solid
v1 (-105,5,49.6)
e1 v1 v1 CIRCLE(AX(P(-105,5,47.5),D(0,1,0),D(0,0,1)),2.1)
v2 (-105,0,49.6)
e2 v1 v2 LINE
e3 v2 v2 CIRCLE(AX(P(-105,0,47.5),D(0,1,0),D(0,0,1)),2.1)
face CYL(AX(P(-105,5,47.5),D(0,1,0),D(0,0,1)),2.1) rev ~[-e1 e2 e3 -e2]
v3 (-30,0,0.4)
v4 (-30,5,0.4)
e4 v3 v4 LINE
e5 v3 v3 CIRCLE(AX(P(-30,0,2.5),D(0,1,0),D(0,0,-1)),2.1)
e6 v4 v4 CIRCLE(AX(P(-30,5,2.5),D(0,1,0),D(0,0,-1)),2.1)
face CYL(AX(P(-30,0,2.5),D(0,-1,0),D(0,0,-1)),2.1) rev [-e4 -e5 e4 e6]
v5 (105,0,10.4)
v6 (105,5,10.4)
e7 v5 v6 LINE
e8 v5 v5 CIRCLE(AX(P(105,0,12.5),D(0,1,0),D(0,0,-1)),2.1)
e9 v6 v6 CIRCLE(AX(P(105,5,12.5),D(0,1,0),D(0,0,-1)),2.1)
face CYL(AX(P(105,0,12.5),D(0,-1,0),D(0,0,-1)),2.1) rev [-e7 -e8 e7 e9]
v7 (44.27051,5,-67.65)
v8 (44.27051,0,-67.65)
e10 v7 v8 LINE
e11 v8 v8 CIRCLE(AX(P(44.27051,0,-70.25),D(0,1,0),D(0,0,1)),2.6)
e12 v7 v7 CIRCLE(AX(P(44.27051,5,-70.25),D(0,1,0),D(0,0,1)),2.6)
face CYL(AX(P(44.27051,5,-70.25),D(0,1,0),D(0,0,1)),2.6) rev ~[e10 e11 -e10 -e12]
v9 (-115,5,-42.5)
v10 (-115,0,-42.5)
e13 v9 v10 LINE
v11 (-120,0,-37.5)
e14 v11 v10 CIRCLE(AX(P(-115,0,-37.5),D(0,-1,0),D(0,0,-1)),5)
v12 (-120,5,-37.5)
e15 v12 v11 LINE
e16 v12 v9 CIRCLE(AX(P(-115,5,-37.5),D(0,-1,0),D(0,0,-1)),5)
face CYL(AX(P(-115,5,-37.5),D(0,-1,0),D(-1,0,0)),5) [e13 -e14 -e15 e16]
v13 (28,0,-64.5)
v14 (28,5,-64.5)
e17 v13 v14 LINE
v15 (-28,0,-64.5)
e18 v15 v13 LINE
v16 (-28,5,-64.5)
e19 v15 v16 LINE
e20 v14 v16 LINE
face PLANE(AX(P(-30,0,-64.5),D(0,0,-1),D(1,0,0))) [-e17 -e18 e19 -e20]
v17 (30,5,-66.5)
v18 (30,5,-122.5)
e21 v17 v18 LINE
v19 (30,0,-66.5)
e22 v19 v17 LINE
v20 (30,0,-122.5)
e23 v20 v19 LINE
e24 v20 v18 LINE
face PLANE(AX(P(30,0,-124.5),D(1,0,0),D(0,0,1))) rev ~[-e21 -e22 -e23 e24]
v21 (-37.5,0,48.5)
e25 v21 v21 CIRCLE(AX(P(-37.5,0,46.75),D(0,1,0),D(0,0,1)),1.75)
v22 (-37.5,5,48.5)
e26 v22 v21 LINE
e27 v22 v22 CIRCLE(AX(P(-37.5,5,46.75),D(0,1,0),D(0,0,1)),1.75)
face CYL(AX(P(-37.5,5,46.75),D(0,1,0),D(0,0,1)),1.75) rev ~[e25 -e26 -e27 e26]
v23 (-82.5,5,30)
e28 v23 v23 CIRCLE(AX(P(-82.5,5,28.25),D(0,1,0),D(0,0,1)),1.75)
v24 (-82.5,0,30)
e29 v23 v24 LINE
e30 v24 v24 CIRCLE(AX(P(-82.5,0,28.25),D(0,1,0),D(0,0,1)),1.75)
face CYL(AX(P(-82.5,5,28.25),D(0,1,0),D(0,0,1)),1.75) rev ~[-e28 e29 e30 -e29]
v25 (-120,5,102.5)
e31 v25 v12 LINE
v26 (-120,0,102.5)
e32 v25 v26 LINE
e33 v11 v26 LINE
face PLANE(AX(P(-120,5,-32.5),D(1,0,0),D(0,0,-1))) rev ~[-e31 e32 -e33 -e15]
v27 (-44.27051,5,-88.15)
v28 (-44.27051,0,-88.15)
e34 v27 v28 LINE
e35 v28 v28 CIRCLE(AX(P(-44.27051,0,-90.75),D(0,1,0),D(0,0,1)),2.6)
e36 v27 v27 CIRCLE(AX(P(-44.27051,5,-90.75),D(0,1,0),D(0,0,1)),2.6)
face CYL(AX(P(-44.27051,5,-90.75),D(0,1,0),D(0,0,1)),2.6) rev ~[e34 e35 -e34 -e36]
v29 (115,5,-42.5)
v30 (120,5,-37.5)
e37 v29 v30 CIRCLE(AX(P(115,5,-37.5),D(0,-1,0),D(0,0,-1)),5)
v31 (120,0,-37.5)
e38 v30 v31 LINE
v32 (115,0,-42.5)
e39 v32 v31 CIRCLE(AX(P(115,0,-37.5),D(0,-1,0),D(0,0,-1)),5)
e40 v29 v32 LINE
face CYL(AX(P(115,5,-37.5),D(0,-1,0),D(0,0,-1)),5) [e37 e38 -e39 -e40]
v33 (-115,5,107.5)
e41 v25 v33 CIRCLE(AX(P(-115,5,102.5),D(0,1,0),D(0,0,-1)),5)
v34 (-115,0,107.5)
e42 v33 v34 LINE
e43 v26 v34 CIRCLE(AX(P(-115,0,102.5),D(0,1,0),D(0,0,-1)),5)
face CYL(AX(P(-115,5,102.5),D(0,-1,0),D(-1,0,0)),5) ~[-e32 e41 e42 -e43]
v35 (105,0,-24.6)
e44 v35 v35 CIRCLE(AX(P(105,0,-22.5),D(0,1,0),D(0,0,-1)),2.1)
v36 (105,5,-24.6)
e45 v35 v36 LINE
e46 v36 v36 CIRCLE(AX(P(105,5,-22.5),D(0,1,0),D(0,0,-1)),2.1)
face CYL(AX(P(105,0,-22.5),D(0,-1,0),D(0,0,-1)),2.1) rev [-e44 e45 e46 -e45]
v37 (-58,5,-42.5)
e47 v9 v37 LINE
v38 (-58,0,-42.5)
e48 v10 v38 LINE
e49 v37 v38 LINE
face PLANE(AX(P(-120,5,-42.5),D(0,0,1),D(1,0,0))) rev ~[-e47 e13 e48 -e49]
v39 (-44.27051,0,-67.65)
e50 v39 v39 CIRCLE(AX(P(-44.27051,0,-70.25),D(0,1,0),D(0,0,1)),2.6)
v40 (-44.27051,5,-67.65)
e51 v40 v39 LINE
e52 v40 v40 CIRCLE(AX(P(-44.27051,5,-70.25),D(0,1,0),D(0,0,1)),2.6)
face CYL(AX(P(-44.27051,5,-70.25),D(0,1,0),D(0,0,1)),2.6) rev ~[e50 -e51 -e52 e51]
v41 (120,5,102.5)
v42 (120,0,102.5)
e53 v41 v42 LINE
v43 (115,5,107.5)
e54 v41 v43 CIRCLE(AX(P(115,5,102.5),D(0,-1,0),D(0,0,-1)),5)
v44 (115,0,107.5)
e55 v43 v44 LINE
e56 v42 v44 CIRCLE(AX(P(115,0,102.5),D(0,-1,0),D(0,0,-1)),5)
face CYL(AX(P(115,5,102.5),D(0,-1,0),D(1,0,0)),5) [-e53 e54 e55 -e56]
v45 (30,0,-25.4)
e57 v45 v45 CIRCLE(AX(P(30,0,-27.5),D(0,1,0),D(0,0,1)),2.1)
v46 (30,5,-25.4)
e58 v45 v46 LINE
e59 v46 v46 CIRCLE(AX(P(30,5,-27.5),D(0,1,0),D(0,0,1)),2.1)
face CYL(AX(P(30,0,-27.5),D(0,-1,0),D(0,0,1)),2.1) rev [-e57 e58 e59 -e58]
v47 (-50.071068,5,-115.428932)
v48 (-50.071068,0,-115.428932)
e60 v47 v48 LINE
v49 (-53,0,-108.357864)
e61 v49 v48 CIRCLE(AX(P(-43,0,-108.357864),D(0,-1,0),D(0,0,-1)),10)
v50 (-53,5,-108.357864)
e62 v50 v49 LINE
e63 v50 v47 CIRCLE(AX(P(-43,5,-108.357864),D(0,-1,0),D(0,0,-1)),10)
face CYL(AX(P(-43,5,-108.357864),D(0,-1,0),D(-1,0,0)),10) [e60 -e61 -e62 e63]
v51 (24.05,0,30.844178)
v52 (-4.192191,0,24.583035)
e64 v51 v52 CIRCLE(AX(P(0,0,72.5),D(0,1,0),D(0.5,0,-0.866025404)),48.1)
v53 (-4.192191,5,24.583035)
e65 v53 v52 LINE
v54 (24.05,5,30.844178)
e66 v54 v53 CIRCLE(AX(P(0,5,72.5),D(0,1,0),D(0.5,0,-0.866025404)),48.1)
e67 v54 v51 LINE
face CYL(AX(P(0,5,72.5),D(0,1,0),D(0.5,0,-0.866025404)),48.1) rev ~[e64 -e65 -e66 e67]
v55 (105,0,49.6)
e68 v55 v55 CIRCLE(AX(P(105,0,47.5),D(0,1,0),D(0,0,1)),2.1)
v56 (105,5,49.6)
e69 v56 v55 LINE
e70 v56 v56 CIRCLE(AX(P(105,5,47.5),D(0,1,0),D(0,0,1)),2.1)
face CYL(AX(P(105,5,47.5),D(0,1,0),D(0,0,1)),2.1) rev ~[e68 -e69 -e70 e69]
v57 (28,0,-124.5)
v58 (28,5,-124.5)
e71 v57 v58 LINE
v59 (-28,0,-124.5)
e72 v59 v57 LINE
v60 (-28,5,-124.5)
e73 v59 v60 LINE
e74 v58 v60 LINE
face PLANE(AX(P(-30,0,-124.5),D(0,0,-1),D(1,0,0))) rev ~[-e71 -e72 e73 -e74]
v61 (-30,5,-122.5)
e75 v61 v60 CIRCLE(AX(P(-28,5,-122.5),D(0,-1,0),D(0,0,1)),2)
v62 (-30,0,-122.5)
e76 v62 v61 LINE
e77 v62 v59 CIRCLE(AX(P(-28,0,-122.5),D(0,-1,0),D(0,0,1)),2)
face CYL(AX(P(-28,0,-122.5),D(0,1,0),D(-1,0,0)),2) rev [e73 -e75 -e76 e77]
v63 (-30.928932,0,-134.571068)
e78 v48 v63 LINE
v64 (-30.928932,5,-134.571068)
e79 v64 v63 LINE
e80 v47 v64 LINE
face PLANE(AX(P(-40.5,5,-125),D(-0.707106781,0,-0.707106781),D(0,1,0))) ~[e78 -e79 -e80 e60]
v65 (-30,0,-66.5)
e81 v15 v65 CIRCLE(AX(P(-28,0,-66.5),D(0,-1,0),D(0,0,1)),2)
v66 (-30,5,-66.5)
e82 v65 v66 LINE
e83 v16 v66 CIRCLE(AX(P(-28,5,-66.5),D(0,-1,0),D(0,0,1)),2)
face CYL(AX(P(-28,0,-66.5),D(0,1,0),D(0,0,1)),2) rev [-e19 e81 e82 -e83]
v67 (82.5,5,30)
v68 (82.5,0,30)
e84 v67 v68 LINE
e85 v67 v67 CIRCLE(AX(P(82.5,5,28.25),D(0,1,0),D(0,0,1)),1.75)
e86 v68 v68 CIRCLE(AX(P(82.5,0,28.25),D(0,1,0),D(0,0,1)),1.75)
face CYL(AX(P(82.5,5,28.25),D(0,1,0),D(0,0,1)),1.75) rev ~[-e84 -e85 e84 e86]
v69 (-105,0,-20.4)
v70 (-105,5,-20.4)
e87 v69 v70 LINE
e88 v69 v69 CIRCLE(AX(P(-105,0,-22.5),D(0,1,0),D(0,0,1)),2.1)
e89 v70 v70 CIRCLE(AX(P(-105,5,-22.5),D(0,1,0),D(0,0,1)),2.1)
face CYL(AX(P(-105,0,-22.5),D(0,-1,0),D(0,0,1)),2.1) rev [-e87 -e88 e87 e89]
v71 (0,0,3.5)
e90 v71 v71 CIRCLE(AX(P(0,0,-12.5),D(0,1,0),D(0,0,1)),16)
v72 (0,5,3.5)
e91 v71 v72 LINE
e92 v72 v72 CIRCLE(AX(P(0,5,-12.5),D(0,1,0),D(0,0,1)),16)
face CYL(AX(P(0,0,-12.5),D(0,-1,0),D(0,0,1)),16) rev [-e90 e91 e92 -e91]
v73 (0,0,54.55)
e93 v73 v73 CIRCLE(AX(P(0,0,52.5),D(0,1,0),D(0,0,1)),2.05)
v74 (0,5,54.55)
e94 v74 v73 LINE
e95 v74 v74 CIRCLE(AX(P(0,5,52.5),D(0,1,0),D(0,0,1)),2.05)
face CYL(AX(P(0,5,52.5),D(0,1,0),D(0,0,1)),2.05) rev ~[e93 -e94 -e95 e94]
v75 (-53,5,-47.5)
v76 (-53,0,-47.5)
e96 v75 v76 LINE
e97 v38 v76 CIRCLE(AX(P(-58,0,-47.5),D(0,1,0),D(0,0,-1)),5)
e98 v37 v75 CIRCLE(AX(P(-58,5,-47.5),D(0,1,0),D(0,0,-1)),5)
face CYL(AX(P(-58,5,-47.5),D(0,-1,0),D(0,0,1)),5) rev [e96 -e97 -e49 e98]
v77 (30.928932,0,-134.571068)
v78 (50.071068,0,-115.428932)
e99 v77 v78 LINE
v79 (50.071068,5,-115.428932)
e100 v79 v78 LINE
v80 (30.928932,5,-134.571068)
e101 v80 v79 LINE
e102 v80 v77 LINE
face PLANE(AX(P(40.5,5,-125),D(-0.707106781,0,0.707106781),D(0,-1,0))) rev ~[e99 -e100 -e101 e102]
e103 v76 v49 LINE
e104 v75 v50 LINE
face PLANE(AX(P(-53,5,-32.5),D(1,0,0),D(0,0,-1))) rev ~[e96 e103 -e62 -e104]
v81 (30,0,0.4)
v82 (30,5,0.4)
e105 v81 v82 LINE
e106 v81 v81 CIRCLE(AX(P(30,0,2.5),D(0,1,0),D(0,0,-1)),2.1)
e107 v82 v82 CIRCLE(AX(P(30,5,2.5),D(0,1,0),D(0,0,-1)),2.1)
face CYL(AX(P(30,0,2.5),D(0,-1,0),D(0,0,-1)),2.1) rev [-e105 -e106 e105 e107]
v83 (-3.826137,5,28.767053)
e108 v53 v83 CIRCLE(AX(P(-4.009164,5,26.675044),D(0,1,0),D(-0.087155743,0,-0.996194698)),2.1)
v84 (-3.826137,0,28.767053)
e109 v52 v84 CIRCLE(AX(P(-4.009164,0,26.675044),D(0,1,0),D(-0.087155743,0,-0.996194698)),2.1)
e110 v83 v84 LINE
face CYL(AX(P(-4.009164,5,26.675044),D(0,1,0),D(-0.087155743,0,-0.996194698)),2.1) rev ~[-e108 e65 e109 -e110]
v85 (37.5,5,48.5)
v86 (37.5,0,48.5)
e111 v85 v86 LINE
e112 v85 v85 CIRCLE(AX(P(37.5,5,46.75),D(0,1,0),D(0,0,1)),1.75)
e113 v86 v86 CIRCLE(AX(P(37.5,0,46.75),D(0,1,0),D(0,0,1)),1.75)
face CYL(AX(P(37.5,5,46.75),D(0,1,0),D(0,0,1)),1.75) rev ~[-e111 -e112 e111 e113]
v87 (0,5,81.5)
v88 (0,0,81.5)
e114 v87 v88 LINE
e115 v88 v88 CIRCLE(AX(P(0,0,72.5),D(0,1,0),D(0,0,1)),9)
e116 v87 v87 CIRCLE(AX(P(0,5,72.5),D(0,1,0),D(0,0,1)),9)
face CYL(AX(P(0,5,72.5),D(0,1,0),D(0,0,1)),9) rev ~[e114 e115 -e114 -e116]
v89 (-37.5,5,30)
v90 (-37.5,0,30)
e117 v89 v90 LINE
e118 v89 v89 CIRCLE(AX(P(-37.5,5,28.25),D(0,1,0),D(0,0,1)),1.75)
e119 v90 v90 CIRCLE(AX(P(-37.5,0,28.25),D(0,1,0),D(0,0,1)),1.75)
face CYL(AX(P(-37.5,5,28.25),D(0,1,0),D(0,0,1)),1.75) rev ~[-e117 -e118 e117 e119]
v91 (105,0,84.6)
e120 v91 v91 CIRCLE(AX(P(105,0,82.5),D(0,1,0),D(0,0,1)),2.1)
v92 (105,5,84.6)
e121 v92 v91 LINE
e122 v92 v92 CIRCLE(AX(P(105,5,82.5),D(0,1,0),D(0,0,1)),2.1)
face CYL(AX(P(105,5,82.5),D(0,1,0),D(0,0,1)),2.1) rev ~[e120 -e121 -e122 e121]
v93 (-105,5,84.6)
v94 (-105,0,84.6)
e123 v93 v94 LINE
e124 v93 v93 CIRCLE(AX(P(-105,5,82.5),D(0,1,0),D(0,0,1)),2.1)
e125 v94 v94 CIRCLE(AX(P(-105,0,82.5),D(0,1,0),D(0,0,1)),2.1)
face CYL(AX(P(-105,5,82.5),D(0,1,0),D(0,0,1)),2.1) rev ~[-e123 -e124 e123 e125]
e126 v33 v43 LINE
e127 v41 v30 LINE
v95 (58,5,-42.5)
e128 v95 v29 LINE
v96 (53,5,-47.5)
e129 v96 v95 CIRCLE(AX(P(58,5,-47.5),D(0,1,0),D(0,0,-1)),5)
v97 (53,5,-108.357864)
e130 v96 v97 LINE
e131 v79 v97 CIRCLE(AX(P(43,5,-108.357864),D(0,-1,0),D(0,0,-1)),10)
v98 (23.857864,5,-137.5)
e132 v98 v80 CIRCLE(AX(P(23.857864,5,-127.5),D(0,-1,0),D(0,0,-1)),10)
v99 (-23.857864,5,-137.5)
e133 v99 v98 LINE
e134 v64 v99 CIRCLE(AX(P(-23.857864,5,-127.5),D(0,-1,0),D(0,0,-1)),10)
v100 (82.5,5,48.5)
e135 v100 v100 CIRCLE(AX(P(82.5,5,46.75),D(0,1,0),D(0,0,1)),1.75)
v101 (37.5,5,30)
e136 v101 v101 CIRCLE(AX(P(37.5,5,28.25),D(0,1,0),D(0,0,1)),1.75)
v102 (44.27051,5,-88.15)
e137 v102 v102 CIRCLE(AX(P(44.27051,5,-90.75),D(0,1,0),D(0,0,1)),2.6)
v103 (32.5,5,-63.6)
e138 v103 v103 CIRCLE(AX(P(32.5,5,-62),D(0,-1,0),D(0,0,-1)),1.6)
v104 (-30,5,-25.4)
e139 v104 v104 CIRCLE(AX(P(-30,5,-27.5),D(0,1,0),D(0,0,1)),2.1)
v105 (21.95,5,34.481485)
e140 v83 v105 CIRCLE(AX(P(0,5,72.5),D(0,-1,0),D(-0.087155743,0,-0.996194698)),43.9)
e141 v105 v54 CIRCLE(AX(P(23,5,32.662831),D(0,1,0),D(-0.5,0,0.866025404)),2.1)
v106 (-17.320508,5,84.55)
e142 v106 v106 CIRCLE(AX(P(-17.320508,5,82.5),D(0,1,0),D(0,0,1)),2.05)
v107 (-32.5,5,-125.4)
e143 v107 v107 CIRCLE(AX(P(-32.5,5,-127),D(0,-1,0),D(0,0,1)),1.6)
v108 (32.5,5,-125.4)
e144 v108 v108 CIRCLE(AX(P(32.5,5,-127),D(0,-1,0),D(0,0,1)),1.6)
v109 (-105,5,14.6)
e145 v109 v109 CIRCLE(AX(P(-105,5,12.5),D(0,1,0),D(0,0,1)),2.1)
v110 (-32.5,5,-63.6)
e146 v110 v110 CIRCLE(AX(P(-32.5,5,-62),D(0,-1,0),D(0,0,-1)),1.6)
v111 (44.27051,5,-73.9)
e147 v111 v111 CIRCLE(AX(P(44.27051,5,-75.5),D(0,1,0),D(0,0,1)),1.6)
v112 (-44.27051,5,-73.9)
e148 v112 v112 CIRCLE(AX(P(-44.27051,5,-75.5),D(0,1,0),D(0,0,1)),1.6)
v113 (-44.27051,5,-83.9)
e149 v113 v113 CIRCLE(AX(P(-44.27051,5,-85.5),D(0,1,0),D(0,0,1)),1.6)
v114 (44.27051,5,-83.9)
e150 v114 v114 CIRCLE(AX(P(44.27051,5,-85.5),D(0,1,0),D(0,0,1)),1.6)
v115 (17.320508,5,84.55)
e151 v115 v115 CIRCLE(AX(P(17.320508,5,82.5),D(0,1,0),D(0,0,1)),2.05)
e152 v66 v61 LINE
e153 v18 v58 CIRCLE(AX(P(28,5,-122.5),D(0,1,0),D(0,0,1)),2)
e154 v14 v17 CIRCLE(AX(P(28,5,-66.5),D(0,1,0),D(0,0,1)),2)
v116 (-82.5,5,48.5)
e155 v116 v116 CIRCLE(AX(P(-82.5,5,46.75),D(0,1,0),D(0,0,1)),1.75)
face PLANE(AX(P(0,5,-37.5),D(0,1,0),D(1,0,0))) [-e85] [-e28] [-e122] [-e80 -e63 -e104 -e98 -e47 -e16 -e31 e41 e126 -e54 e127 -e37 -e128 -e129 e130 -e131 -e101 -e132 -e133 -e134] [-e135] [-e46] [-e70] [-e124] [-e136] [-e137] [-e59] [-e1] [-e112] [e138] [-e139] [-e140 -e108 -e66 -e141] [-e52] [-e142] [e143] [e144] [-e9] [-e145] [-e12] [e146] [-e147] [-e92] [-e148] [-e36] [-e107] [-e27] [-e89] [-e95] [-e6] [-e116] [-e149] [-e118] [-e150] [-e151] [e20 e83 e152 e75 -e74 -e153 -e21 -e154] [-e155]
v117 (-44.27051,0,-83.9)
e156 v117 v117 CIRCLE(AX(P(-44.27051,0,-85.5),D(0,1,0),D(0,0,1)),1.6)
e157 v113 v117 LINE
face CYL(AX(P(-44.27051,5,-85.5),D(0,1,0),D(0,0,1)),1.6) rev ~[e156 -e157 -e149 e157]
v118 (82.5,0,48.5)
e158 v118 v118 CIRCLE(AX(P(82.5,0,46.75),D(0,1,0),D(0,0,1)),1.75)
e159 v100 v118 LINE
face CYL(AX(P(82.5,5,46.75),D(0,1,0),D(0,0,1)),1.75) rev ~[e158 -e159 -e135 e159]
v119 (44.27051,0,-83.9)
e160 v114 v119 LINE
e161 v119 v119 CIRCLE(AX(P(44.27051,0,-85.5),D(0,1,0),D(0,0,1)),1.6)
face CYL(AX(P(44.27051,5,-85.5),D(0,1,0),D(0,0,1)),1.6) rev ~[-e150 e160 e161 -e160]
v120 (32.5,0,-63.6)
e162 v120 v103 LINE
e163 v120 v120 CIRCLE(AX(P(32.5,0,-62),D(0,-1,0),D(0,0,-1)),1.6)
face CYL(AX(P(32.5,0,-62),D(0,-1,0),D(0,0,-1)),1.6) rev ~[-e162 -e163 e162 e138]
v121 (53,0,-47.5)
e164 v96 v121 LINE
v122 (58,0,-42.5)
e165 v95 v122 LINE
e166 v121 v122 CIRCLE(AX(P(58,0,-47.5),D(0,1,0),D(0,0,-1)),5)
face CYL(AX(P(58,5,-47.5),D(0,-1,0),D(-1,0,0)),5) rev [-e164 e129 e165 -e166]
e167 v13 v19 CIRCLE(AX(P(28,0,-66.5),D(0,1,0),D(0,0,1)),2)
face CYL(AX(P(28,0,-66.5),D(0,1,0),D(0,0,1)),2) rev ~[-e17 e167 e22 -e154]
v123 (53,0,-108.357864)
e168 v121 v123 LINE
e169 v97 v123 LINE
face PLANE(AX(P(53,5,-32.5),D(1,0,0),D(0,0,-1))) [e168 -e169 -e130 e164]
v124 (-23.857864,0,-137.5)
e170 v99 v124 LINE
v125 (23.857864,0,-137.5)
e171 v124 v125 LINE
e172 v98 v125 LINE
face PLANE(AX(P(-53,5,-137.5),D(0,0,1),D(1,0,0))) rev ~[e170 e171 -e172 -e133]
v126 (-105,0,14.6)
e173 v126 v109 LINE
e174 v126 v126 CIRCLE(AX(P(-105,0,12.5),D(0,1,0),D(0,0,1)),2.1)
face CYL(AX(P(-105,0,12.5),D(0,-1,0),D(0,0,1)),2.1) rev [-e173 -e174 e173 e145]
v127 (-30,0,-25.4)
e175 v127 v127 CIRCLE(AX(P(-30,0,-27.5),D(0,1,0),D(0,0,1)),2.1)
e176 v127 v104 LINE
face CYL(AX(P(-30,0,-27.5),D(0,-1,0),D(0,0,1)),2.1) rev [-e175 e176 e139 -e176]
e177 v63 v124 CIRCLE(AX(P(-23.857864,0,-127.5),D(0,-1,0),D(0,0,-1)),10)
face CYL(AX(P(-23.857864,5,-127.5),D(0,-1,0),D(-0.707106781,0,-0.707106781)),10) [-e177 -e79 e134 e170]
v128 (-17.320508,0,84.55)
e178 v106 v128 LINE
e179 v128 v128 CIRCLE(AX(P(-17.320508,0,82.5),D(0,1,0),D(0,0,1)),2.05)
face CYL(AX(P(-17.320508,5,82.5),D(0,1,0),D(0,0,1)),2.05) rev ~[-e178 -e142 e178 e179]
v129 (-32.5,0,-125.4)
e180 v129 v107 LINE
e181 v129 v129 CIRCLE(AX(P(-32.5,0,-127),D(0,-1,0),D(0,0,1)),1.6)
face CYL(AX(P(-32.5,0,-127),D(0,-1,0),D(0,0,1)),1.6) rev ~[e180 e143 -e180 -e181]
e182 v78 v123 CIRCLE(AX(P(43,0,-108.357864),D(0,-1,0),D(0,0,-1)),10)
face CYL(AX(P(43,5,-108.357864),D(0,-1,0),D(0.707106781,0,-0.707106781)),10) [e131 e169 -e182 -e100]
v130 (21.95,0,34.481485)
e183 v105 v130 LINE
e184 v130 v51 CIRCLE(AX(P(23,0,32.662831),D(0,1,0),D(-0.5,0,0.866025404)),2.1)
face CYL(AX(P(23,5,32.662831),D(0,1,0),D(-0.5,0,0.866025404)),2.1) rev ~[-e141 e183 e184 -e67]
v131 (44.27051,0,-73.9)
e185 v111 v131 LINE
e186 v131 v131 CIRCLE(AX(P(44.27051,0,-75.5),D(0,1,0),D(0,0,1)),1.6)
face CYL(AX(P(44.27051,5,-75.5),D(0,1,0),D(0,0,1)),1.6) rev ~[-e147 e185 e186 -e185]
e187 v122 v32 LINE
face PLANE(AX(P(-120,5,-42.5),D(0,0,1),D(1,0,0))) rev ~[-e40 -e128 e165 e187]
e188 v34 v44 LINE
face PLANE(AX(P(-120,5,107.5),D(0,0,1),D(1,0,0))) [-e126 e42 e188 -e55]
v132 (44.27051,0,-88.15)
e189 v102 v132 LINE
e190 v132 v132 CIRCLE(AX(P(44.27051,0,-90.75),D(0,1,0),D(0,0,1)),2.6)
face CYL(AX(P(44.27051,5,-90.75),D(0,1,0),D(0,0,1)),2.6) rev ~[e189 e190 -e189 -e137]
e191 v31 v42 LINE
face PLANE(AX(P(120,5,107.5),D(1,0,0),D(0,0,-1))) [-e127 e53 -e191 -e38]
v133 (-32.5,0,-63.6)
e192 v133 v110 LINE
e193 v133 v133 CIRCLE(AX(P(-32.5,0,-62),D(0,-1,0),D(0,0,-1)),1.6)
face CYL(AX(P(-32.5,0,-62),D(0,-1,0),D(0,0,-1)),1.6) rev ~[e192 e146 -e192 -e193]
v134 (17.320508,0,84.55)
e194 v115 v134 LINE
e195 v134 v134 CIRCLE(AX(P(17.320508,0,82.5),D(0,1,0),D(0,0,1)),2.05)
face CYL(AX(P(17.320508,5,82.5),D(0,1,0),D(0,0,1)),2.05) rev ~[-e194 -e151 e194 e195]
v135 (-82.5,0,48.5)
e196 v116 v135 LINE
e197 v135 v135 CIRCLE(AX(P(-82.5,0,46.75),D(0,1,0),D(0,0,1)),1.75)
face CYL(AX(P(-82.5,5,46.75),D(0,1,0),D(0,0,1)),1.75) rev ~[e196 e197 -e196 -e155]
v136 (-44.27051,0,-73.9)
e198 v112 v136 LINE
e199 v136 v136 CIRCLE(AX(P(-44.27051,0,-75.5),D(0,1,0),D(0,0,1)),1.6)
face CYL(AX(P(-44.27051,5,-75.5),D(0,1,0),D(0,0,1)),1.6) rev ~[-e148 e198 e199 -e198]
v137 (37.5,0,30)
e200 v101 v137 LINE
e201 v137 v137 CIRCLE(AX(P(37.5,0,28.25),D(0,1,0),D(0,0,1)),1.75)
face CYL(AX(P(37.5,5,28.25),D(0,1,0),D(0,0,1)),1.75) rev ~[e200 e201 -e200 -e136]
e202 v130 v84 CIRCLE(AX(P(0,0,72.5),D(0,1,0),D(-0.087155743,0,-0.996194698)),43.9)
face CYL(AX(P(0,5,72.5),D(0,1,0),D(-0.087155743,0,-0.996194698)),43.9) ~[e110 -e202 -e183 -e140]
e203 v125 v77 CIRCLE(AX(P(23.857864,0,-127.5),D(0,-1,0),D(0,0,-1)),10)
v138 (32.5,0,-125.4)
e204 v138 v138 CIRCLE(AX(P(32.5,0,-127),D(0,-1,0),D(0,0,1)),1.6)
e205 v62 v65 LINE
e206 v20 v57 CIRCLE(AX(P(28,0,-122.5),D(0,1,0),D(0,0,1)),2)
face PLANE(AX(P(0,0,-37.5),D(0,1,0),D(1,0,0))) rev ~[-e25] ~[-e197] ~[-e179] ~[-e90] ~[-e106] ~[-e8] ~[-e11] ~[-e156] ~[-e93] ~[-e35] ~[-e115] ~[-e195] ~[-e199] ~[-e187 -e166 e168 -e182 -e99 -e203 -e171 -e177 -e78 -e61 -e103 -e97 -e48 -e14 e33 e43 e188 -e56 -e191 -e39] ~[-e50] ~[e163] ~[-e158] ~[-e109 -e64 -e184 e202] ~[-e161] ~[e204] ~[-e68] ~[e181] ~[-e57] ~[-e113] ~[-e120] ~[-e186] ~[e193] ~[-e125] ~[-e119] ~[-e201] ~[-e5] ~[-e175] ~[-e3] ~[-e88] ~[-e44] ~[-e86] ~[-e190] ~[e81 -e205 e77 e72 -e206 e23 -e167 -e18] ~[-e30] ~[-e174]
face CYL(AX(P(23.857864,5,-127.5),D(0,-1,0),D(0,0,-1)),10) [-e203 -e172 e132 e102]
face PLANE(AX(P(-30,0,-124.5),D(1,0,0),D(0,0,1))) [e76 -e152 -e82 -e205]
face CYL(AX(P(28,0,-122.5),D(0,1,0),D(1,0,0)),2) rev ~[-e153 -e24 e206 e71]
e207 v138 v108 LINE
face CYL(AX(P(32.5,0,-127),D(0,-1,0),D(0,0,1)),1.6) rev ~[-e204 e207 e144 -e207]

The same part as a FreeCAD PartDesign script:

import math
import FreeCAD as App
import Part
import Sketcher
from FreeCAD import Vector


def edges_at(feature, points):
    """Names of the edges that pass closest to the given points."""
    edges = feature.Shape.Edges
    near = lambda p: min(range(len(edges)), key=lambda i: edges[i].distToShape(Part.Vertex(*p))[0])
    return sorted({f"Edge{near(p) + 1}" for p in points})

doc = App.newDocument("Part")
body = doc.addObject("PartDesign::Body", "Body")

# Sketch on XZ plane
sketch1 = body.newObject("Sketcher::SketchObject", "Sketch")
sketch1.AttachmentSupport = (doc.getObject("XZ_Plane"), [""])
sketch1.MapMode = "FlatFace"
sketch1.addGeometry(Part.LineSegment(Vector(-120, -32.5, 0), Vector(-120, 32.5, 0)), False)
sketch1.addGeometry(Part.LineSegment(Vector(-120, 32.5, 0), Vector(120, 32.5, 0)), False)
sketch1.addGeometry(Part.LineSegment(Vector(120, 32.5, 0), Vector(120, -32.5, 0)), False)
sketch1.addGeometry(Part.LineSegment(Vector(120, -32.5, 0), Vector(-120, -32.5, 0)), False)
sketch1.addGeometry(Part.Circle(Vector(-105, 12.5, 0), Vector(0, 0, 1), 2.1), False)
sketch1.addGeometry(Part.Circle(Vector(-30, 2.5, 0), Vector(0, 0, 1), 2.1), False)
sketch1.addGeometry(Part.Circle(Vector(105, 12.5, 0), Vector(0, 0, 1), 2.1), False)
sketch1.addGeometry(Part.Circle(Vector(30, 2.5, 0), Vector(0, 0, 1), 2.1), False)
sketch1.addGeometry(Part.Circle(Vector(0, -12.5, 0), Vector(0, 0, 1), 16), False)
sketch1.addGeometry(Part.Circle(Vector(-105, -22.5, 0), Vector(0, 0, 1), 2.1), False)
sketch1.addGeometry(Part.Circle(Vector(-30, -27.5, 0), Vector(0, 0, 1), 2.1), False)
sketch1.addGeometry(Part.Circle(Vector(30, -27.5, 0), Vector(0, 0, 1), 2.1), False)
sketch1.addGeometry(Part.Circle(Vector(105, -22.5, 0), Vector(0, 0, 1), 2.1), False)
sketch1.addConstraint(Sketcher.Constraint("Coincident", 0, 2, 1, 1))
sketch1.addConstraint(Sketcher.Constraint("Coincident", 1, 2, 2, 1))
sketch1.addConstraint(Sketcher.Constraint("Coincident", 2, 2, 3, 1))
sketch1.addConstraint(Sketcher.Constraint("Coincident", 3, 2, 0, 1))
sketch1.addConstraint(Sketcher.Constraint("Vertical", 0))
sketch1.addConstraint(Sketcher.Constraint("Horizontal", 1))
sketch1.addConstraint(Sketcher.Constraint("Vertical", 2))
sketch1.addConstraint(Sketcher.Constraint("Horizontal", 3))
sketch1.addConstraint(Sketcher.Constraint("Equal", 4, 5))
sketch1.addConstraint(Sketcher.Constraint("Equal", 5, 6))
sketch1.addConstraint(Sketcher.Constraint("Equal", 6, 7))
sketch1.addConstraint(Sketcher.Constraint("Equal", 7, 9))
sketch1.addConstraint(Sketcher.Constraint("Equal", 9, 10))
sketch1.addConstraint(Sketcher.Constraint("Equal", 10, 11))
sketch1.addConstraint(Sketcher.Constraint("Equal", 11, 12))
sketch1.addConstraint(Sketcher.Constraint("Symmetric", 0, 2, 2, 2, -1, 1))
sketch1.addConstraint(Sketcher.Constraint("Symmetric", 4, 3, 6, 3, -2))
sketch1.addConstraint(Sketcher.Constraint("Symmetric", 5, 3, 7, 3, -2))
sketch1.addConstraint(Sketcher.Constraint("Symmetric", 10, 3, 11, 3, -2))
sketch1.addConstraint(Sketcher.Constraint("Symmetric", 9, 3, 12, 3, -2))
sketch1.addConstraint(Sketcher.Constraint("PointOnObject", 8, 3, -2))
sketch1.addConstraint(Sketcher.Constraint("Vertical", 4, 3, 9, 3))
sketch1.addConstraint(Sketcher.Constraint("Vertical", 5, 3, 10, 3))
sketch1.addConstraint(Sketcher.Constraint("Diameter", 8, 32.0))
sketch1.addConstraint(Sketcher.Constraint("Diameter", 4, 4.2))
sketch1.addConstraint(Sketcher.Constraint("DistanceX", 1, 1, 1, 2, 240.0))
sketch1.addConstraint(Sketcher.Constraint("DistanceY", 0, 1, 0, 2, 65.0))
sketch1.addConstraint(Sketcher.Constraint("DistanceX", 4, 3, -1, 1, 105.0))
sketch1.addConstraint(Sketcher.Constraint("DistanceX", 5, 3, -1, 1, 30.0))
sketch1.addConstraint(Sketcher.Constraint("DistanceY", 5, 3, 4, 3, 10.0))
sketch1.addConstraint(Sketcher.Constraint("DistanceY", 8, 3, 5, 3, 15.0))
sketch1.addConstraint(Sketcher.Constraint("DistanceY", 9, 3, 4, 3, 35.0))
sketch1.addConstraint(Sketcher.Constraint("DistanceY", 10, 3, 5, 3, 30.0))
sketch1.addConstraint(Sketcher.Constraint("DistanceY", 4, 3, 0, 2, 20.0))
pad1 = body.newObject("PartDesign::Pad", "Pad")
pad1.Profile = sketch1
pad1.Length = 5
pad1.Reversed = True

# Sketch on XZ plane
sketch2 = body.newObject("Sketcher::SketchObject", "Sketch001")
sketch2.AttachmentSupport = (doc.getObject("XZ_Plane"), [""])
sketch2.MapMode = "FlatFace"
sketch2.AttachmentOffset = App.Placement(Vector(0, 0, -5), App.Rotation())
sketch2.addGeometry(Part.LineSegment(Vector(-120, 32.5, 0), Vector(-120, 107.5, 0)), False)
sketch2.addGeometry(Part.LineSegment(Vector(-120, 107.5, 0), Vector(120, 107.5, 0)), False)
sketch2.addGeometry(Part.LineSegment(Vector(120, 107.5, 0), Vector(120, 32.5, 0)), False)
sketch2.addGeometry(Part.LineSegment(Vector(120, 32.5, 0), Vector(-120, 32.5, 0)), False)
sketch2.addGeometry(Part.Circle(Vector(-105, 82.5, 0), Vector(0, 0, 1), 2.1), False)
sketch2.addGeometry(Part.Circle(Vector(-17.3, 82.5, 0), Vector(0, 0, 1), 2), False)
sketch2.addGeometry(Part.Circle(Vector(0, 72.5, 0), Vector(0, 0, 1), 9), False)
sketch2.addGeometry(Part.Circle(Vector(17.3, 82.5, 0), Vector(0, 0, 1), 2), False)
sketch2.addGeometry(Part.Circle(Vector(105, 82.5, 0), Vector(0, 0, 1), 2.1), False)
sketch2.addGeometry(Part.Circle(Vector(-105, 47.5, 0), Vector(0, 0, 1), 2.1), False)
sketch2.addGeometry(Part.Circle(Vector(0, 52.5, 0), Vector(0, 0, 1), 2), False)
sketch2.addGeometry(Part.Circle(Vector(105, 47.5, 0), Vector(0, 0, 1), 2.1), False)
sketch2.addGeometry(Part.LineSegment(Vector(-53, -137.5, 0), Vector(-53, -32.5, 0)), False)
sketch2.addGeometry(Part.LineSegment(Vector(-53, -32.5, 0), Vector(53, -32.5, 0)), False)
sketch2.addGeometry(Part.LineSegment(Vector(53, -32.5, 0), Vector(53, -137.5, 0)), False)
sketch2.addGeometry(Part.LineSegment(Vector(53, -137.5, 0), Vector(-53, -137.5, 0)), False)
sketch2.addGeometry(Part.Circle(Vector(-44.3, -70.2, 0), Vector(0, 0, 1), 2.6), False)
sketch2.addGeometry(Part.Circle(Vector(-44.3, -75.5, 0), Vector(0, 0, 1), 1.6), False)
sketch2.addGeometry(Part.Circle(Vector(44.3, -70.2, 0), Vector(0, 0, 1), 2.6), False)
sketch2.addGeometry(Part.Circle(Vector(44.3, -75.5, 0), Vector(0, 0, 1), 1.6), False)
sketch2.addGeometry(Part.Circle(Vector(-44.3, -85.5, 0), Vector(0, 0, 1), 1.6), False)
sketch2.addGeometry(Part.Circle(Vector(-44.3, -90.8, 0), Vector(0, 0, 1), 2.6), False)
sketch2.addGeometry(Part.Circle(Vector(44.3, -85.5, 0), Vector(0, 0, 1), 1.6), False)
sketch2.addGeometry(Part.Circle(Vector(44.3, -90.8, 0), Vector(0, 0, 1), 2.6), False)
sketch2.addConstraint(Sketcher.Constraint("Coincident", 0, 2, 1, 1))
sketch2.addConstraint(Sketcher.Constraint("Coincident", 1, 2, 2, 1))
sketch2.addConstraint(Sketcher.Constraint("Coincident", 2, 2, 3, 1))
sketch2.addConstraint(Sketcher.Constraint("Coincident", 3, 2, 0, 1))
sketch2.addConstraint(Sketcher.Constraint("Coincident", 12, 2, 13, 1))
sketch2.addConstraint(Sketcher.Constraint("Coincident", 13, 2, 14, 1))
sketch2.addConstraint(Sketcher.Constraint("Coincident", 14, 2, 15, 1))
sketch2.addConstraint(Sketcher.Constraint("Coincident", 15, 2, 12, 1))
sketch2.addConstraint(Sketcher.Constraint("Vertical", 0))
sketch2.addConstraint(Sketcher.Constraint("Horizontal", 1))
sketch2.addConstraint(Sketcher.Constraint("Vertical", 2))
sketch2.addConstraint(Sketcher.Constraint("Horizontal", 3))
sketch2.addConstraint(Sketcher.Constraint("Vertical", 12))
sketch2.addConstraint(Sketcher.Constraint("Horizontal", 13))
sketch2.addConstraint(Sketcher.Constraint("Vertical", 14))
sketch2.addConstraint(Sketcher.Constraint("Horizontal", 15))
sketch2.addConstraint(Sketcher.Constraint("Equal", 5, 7))
sketch2.addConstraint(Sketcher.Constraint("Equal", 4, 8))
sketch2.addConstraint(Sketcher.Constraint("Equal", 8, 9))
sketch2.addConstraint(Sketcher.Constraint("Equal", 7, 10))
sketch2.addConstraint(Sketcher.Constraint("Equal", 9, 11))
sketch2.addConstraint(Sketcher.Constraint("Equal", 16, 18))
sketch2.addConstraint(Sketcher.Constraint("Equal", 17, 19))
sketch2.addConstraint(Sketcher.Constraint("Equal", 19, 20))
sketch2.addConstraint(Sketcher.Constraint("Equal", 18, 21))
sketch2.addConstraint(Sketcher.Constraint("Equal", 20, 22))
sketch2.addConstraint(Sketcher.Constraint("Equal", 21, 23))
sketch2.addConstraint(Sketcher.Constraint("Symmetric", 5, 3, 7, 3, -2))
sketch2.addConstraint(Sketcher.Constraint("Symmetric", 4, 3, 8, 3, -2))
sketch2.addConstraint(Sketcher.Constraint("Symmetric", 9, 3, 11, 3, -2))
sketch2.addConstraint(Sketcher.Constraint("Symmetric", 16, 3, 18, 3, -2))
sketch2.addConstraint(Sketcher.Constraint("Symmetric", 17, 3, 19, 3, -2))
sketch2.addConstraint(Sketcher.Constraint("Symmetric", 20, 3, 22, 3, -2))
sketch2.addConstraint(Sketcher.Constraint("Symmetric", 21, 3, 23, 3, -2))
sketch2.addConstraint(Sketcher.Constraint("PointOnObject", 6, 3, -2))
sketch2.addConstraint(Sketcher.Constraint("PointOnObject", 10, 3, -2))
sketch2.addConstraint(Sketcher.Constraint("Horizontal", 4, 3, 5, 3))
sketch2.addConstraint(Sketcher.Constraint("Vertical", 4, 3, 9, 3))
sketch2.addConstraint(Sketcher.Constraint("Vertical", 16, 3, 17, 3))
sketch2.addConstraint(Sketcher.Constraint("Vertical", 17, 3, 20, 3))
sketch2.addConstraint(Sketcher.Constraint("Vertical", 20, 3, 21, 3))
sketch2.addConstraint(Sketcher.Constraint("Diameter", 6, 18.0))
sketch2.addConstraint(Sketcher.Constraint("Diameter", 4, 4.2))
sketch2.addConstraint(Sketcher.Constraint("Diameter", 5, 4.1))
sketch2.addConstraint(Sketcher.Constraint("Diameter", 16, 5.2))
sketch2.addConstraint(Sketcher.Constraint("Diameter", 17, 3.2))
sketch2.addConstraint(Sketcher.Constraint("DistanceX", 1, 1, 1, 2, 240.0))
sketch2.addConstraint(Sketcher.Constraint("DistanceX", 13, 1, 13, 2, 106.0))
sketch2.addConstraint(Sketcher.Constraint("DistanceY", 0, 1, 0, 2, 75.0))
sketch2.addConstraint(Sketcher.Constraint("DistanceY", 12, 1, 12, 2, 105.0))
sketch2.addConstraint(Sketcher.Constraint("DistanceX", 4, 3, -1, 1, 105.0))
sketch2.addConstraint(Sketcher.Constraint("DistanceX", 0, 2, -1, 1, 120.0))
sketch2.addConstraint(Sketcher.Constraint("DistanceX", 12, 2, -1, 1, 53.0))
sketch2.addConstraint(Sketcher.Constraint("DistanceY", 6, 3, 5, 3, 10.0))
sketch2.addConstraint(Sketcher.Constraint("DistanceY", 9, 3, 4, 3, 35.0))
sketch2.addConstraint(Sketcher.Constraint("DistanceY", 10, 3, 6, 3, 20.0))
sketch2.addConstraint(Sketcher.Constraint("DistanceY", 17, 3, 10, 3, 128.0))
sketch2.addConstraint(Sketcher.Constraint("DistanceY", 20, 3, 17, 3, 10.0))
sketch2.addConstraint(Sketcher.Constraint("DistanceY", 4, 3, 0, 2, 25.0))
sketch2.addConstraint(Sketcher.Constraint("DistanceY", 17, 3, 12, 2, 43.0))
sketch2.addConstraint(Sketcher.Constraint("DistanceY", -1, 1, 4, 3, 82.5))
sketch2.addConstraint(Sketcher.Constraint("DistanceY", 21, 3, 16, 3, 20.5))
sketch2.addConstraint(Sketcher.Constraint("DistanceY", 16, 3, -1, 1, 70.25))
sketch2.addConstraint(Sketcher.Constraint("DistanceX", 16, 3, 5, 3, 26.950002))
sketch2.addConstraint(Sketcher.Constraint("DistanceX", 5, 3, -1, 1, 17.320508))
pad2 = body.newObject("PartDesign::Pad", "Pad001")
pad2.Profile = sketch2
pad2.Length = 5

# Sketch on XZ plane
sketch3 = body.newObject("Sketcher::SketchObject", "Sketch002")
sketch3.AttachmentSupport = (doc.getObject("XZ_Plane"), [""])
sketch3.MapMode = "FlatFace"
sketch3.AttachmentOffset = App.Placement(Vector(0, 0, -5), App.Rotation())
sketch3.addGeometry(Part.ArcOfCircle(Part.Circle(Vector(0, 72.5, 0), Vector(0, 0, 1), 48.1), math.radians(-95), math.radians(-60)), False)
sketch3.addGeometry(Part.ArcOfCircle(Part.Circle(Vector(-4, 26.7, 0), Vector(0, 0, 1), 2.1), math.radians(85), math.radians(265)), False)
sketch3.addGeometry(Part.ArcOfCircle(Part.Circle(Vector(0, 72.5, 0), Vector(0, 0, 1), 43.9), math.radians(-95), math.radians(-60)), False)
sketch3.addGeometry(Part.ArcOfCircle(Part.Circle(Vector(23, 32.7, 0), Vector(0, 0, 1), 2.1), math.radians(-60), math.radians(120)), False)
sketch3.addConstraint(Sketcher.Constraint("Tangent", 0, 1, 1, 2))
sketch3.addConstraint(Sketcher.Constraint("Tangent", 1, 1, 2, 1))
sketch3.addConstraint(Sketcher.Constraint("Tangent", 2, 2, 3, 2))
sketch3.addConstraint(Sketcher.Constraint("Tangent", 3, 1, 0, 2))
sketch3.addConstraint(Sketcher.Constraint("Coincident", 2, 3, 0, 3))
sketch3.addConstraint(Sketcher.Constraint("PointOnObject", 0, 3, -2))
sketch3.addConstraint(Sketcher.Constraint("Radius", 0, 48.1))
sketch3.addConstraint(Sketcher.Constraint("Radius", 1, 2.1))
sketch3.addConstraint(Sketcher.Constraint("DistanceX", -1, 1, 3, 3, 23.0))
sketch3.addConstraint(Sketcher.Constraint("DistanceY", -1, 1, 0, 3, 72.5))
sketch3.addConstraint(Sketcher.Constraint("DistanceX", 0, 1, -1, 1, 4.192191))
pocket1 = body.newObject("PartDesign::Pocket", "Pocket")
pocket1.Profile = sketch3
pocket1.Length = 10
pocket1.Reversed = True

# Sketch on XZ plane
sketch4 = body.newObject("Sketcher::SketchObject", "Sketch003")
sketch4.AttachmentSupport = (doc.getObject("XZ_Plane"), [""])
sketch4.MapMode = "FlatFace"
sketch4.AttachmentOffset = App.Placement(Vector(0, 0, -5), App.Rotation())
sketch4.addGeometry(Part.LineSegment(Vector(-120, -42, 0), Vector(-120, -32, 0)), False)
sketch4.addGeometry(Part.LineSegment(Vector(-120, -32, 0), Vector(120, -32, 0)), False)
sketch4.addGeometry(Part.LineSegment(Vector(120, -32, 0), Vector(120, -42, 0)), False)
sketch4.addGeometry(Part.LineSegment(Vector(120, -42, 0), Vector(-120, -42, 0)), False)
sketch4.addConstraint(Sketcher.Constraint("Coincident", 0, 2, 1, 1))
sketch4.addConstraint(Sketcher.Constraint("Coincident", 1, 2, 2, 1))
sketch4.addConstraint(Sketcher.Constraint("Coincident", 2, 2, 3, 1))
sketch4.addConstraint(Sketcher.Constraint("Coincident", 3, 2, 0, 1))
sketch4.addConstraint(Sketcher.Constraint("Vertical", 0))
sketch4.addConstraint(Sketcher.Constraint("Horizontal", 1))
sketch4.addConstraint(Sketcher.Constraint("Vertical", 2))
sketch4.addConstraint(Sketcher.Constraint("Horizontal", 3))
sketch4.addConstraint(Sketcher.Constraint("DistanceX", 1, 1, 1, 2, 240.0))
sketch4.addConstraint(Sketcher.Constraint("DistanceY", 0, 1, 0, 2, 10.0))
sketch4.addConstraint(Sketcher.Constraint("DistanceX", 0, 2, -1, 1, 120.0))
sketch4.addConstraint(Sketcher.Constraint("DistanceY", 0, 2, -1, 1, 32.5))
pad3 = body.newObject("PartDesign::Pad", "Pad002")
pad3.Profile = sketch4
pad3.Length = 5
doc.recompute()

fillet = body.newObject("PartDesign::Fillet", "Fillet")
fillet.Base = (pad3, edges_at(pad3, [
    (-120, 2.5, -42.5),
    (120, 2.5, -42.5),
    (-120, 2.5, 107.5),
    (120, 2.5, 107.5),
]))
fillet.Radius = 5

# Sketch on XZ plane
sketch5 = body.newObject("Sketcher::SketchObject", "Sketch004")
sketch5.AttachmentSupport = (doc.getObject("XZ_Plane"), [""])
sketch5.MapMode = "FlatFace"
sketch5.addGeometry(Part.Circle(Vector(-32.5, -62, 0), Vector(0, 0, 1), 1.6), False)
sketch5.addGeometry(Part.Circle(Vector(32.5, -62, 0), Vector(0, 0, 1), 1.6), False)
sketch5.addGeometry(Part.Circle(Vector(32.5, -127, 0), Vector(0, 0, 1), 1.6), False)
sketch5.addGeometry(Part.Circle(Vector(-32.5, -127, 0), Vector(0, 0, 1), 1.6), False)
sketch5.addGeometry(Part.LineSegment(Vector(-30, -64.5, 0), Vector(-30, -124.5, 0)), False)
sketch5.addGeometry(Part.LineSegment(Vector(-30, -124.5, 0), Vector(30, -124.5, 0)), False)
sketch5.addGeometry(Part.LineSegment(Vector(30, -124.5, 0), Vector(30, -64.5, 0)), False)
sketch5.addGeometry(Part.LineSegment(Vector(30, -64.5, 0), Vector(-30, -64.5, 0)), False)
sketch5.addConstraint(Sketcher.Constraint("Coincident", 4, 2, 5, 1))
sketch5.addConstraint(Sketcher.Constraint("Coincident", 5, 2, 6, 1))
sketch5.addConstraint(Sketcher.Constraint("Coincident", 6, 2, 7, 1))
sketch5.addConstraint(Sketcher.Constraint("Coincident", 7, 2, 4, 1))
sketch5.addConstraint(Sketcher.Constraint("Vertical", 4))
sketch5.addConstraint(Sketcher.Constraint("Horizontal", 5))
sketch5.addConstraint(Sketcher.Constraint("Vertical", 6))
sketch5.addConstraint(Sketcher.Constraint("Horizontal", 7))
sketch5.addConstraint(Sketcher.Constraint("Equal", 0, 1))
sketch5.addConstraint(Sketcher.Constraint("Equal", 1, 2))
sketch5.addConstraint(Sketcher.Constraint("Equal", 2, 3))
sketch5.addConstraint(Sketcher.Constraint("Symmetric", 0, 3, 1, 3, -2))
sketch5.addConstraint(Sketcher.Constraint("Symmetric", 2, 3, 3, 3, -2))
sketch5.addConstraint(Sketcher.Constraint("Vertical", 1, 3, 2, 3))
sketch5.addConstraint(Sketcher.Constraint("Equal", 7, 4))
sketch5.addConstraint(Sketcher.Constraint("Diameter", 0, 3.2))
sketch5.addConstraint(Sketcher.Constraint("DistanceX", 5, 1, 5, 2, 60.0))
sketch5.addConstraint(Sketcher.Constraint("DistanceY", 0, 3, -1, 1, 62.0))
sketch5.addConstraint(Sketcher.Constraint("DistanceY", 2, 3, -1, 1, 127.0))
sketch5.addConstraint(Sketcher.Constraint("DistanceX", 4, 2, -1, 1, 30.0))
sketch5.addConstraint(Sketcher.Constraint("DistanceX", 0, 3, 1, 3, 65.0))
sketch5.addConstraint(Sketcher.Constraint("DistanceY", 4, 2, -1, 1, 124.5))
pocket2 = body.newObject("PartDesign::Pocket", "Pocket001")
pocket2.Profile = sketch5
pocket2.Length = 10
doc.recompute()

fillet2 = body.newObject("PartDesign::Fillet", "Fillet001")
fillet2.Base = (pocket2, edges_at(pocket2, [(-53, 2.5, -42.5), (53, 2.5, -42.5)]))
fillet2.Radius = 5
doc.recompute()

chamfer = body.newObject("PartDesign::Chamfer", "Chamfer")
chamfer.Base = (fillet2, edges_at(fillet2, [(53, 2.5, -137.5), (-53, 2.5, -137.5)]))
chamfer.Size = 25

# Sketch on XZ plane
sketch6 = body.newObject("Sketcher::SketchObject", "Sketch005")
sketch6.AttachmentSupport = (doc.getObject("XZ_Plane"), [""])
sketch6.MapMode = "FlatFace"
sketch6.AttachmentOffset = App.Placement(Vector(0, 0, -5), App.Rotation())
sketch6.addGeometry(Part.Circle(Vector(37.5, 28.2, 0), Vector(0, 0, 1), 1.8), False)
sketch6.addGeometry(Part.Circle(Vector(37.5, 46.8, 0), Vector(0, 0, 1), 1.8), False)
sketch6.addGeometry(Part.Circle(Vector(82.5, 28.2, 0), Vector(0, 0, 1), 1.8), False)
sketch6.addGeometry(Part.Circle(Vector(82.5, 46.8, 0), Vector(0, 0, 1), 1.8), False)
sketch6.addGeometry(Part.Circle(Vector(-82.5, 46.8, 0), Vector(0, 0, 1), 1.8), False)
sketch6.addGeometry(Part.Circle(Vector(-82.5, 28.2, 0), Vector(0, 0, 1), 1.8), False)
sketch6.addGeometry(Part.Circle(Vector(-37.5, 46.8, 0), Vector(0, 0, 1), 1.8), False)
sketch6.addGeometry(Part.Circle(Vector(-37.5, 28.2, 0), Vector(0, 0, 1), 1.8), False)
sketch6.addConstraint(Sketcher.Constraint("Equal", 0, 1))
sketch6.addConstraint(Sketcher.Constraint("Equal", 1, 2))
sketch6.addConstraint(Sketcher.Constraint("Equal", 2, 3))
sketch6.addConstraint(Sketcher.Constraint("Equal", 3, 4))
sketch6.addConstraint(Sketcher.Constraint("Equal", 4, 5))
sketch6.addConstraint(Sketcher.Constraint("Equal", 5, 6))
sketch6.addConstraint(Sketcher.Constraint("Equal", 6, 7))
sketch6.addConstraint(Sketcher.Constraint("Symmetric", 3, 3, 4, 3, -2))
sketch6.addConstraint(Sketcher.Constraint("Symmetric", 2, 3, 5, 3, -2))
sketch6.addConstraint(Sketcher.Constraint("Symmetric", 1, 3, 6, 3, -2))
sketch6.addConstraint(Sketcher.Constraint("Symmetric", 0, 3, 7, 3, -2))
sketch6.addConstraint(Sketcher.Constraint("Horizontal", 0, 3, 2, 3))
sketch6.addConstraint(Sketcher.Constraint("Horizontal", 1, 3, 3, 3))
sketch6.addConstraint(Sketcher.Constraint("Vertical", 0, 3, 1, 3))
sketch6.addConstraint(Sketcher.Constraint("Vertical", 2, 3, 3, 3))
sketch6.addConstraint(Sketcher.Constraint("Diameter", 0, 3.5))
sketch6.addConstraint(Sketcher.Constraint("DistanceX", 0, 3, 2, 3, 45.0))
sketch6.addConstraint(Sketcher.Constraint("DistanceX", 4, 3, 1, 3, 120.0))
sketch6.addConstraint(Sketcher.Constraint("DistanceY", 0, 3, 1, 3, 18.5))
sketch6.addConstraint(Sketcher.Constraint("DistanceY", -1, 1, 0, 3, 28.25))
pocket3 = body.newObject("PartDesign::Pocket", "Pocket002")
pocket3.Profile = sketch6
pocket3.Length = 10
pocket3.Reversed = True
doc.recompute()

fillet3 = body.newObject("PartDesign::Fillet", "Fillet002")
fillet3.Base = (pocket3, edges_at(pocket3, [
    (53, 2.5, -112.5),
    (-28, 2.5, -137.5),
    (28, 2.5, -137.5),
    (-53, 2.5, -112.5),
]))
fillet3.Radius = 10
doc.recompute()

fillet4 = body.newObject("PartDesign::Fillet", "Fillet003")
fillet4.Base = (fillet3, edges_at(fillet3, [
    (30, 2.5, -64.5),
    (30, 2.5, -124.5),
    (-30, 2.5, -124.5),
    (-30, 2.5, -64.5),
]))
fillet4.Radius = 2

doc.recompute()
